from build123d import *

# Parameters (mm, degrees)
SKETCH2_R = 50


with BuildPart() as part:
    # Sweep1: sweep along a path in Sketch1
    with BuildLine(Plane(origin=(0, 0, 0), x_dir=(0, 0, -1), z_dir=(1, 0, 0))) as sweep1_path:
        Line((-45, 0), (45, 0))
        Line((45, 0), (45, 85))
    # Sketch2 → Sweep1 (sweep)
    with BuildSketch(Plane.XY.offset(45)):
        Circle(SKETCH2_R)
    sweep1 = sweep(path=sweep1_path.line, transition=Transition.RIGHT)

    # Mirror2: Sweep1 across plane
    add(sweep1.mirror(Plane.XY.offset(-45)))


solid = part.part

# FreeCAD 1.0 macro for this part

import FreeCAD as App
import Part
import Sketcher
Q = App.Units.Quantity

doc = App.newDocument("Part")
params = doc.addObject("Spreadsheet::Sheet", "Params")
for row, (alias, value) in enumerate([
    ("sketch1_diameter", "100 mm"),
    ("sketch2_width", "85 mm"),
    ("sketch2_height", "90 mm"),
], start=1):
    params.set(f"A{row}", alias)
    params.set(f"B{row}", "=" + value)
    params.setAlias(f"B{row}", alias)

body = doc.addObject("PartDesign::Body", "Body")

# Sketch on XY plane
sketch1 = doc.addObject("Sketcher::SketchObject", "Sketch")
body.addObject(sketch1)
sketch1.AttachmentSupport = (doc.XY_Plane, [""])
sketch1.MapMode = "FlatFace"
sketch1.AttachmentOffset = App.Placement(App.Vector(0, 0, 45), App.Rotation())
sketch1.addGeometry(Part.Circle(App.Vector(0, 0, 0), App.Vector(0, 0, 1), 50), False)
sketch1.addConstraint(Sketcher.Constraint("Coincident", 0, 3, -1, 1))
sketch1.addConstraint(Sketcher.Constraint("Diameter", 0, Q("100 mm")))
sketch1.setExpression("Constraints[1]", "Params.sketch1_diameter")

# Sketch on YZ plane
sketch2 = doc.addObject("Sketcher::SketchObject", "Sketch001")
body.addObject(sketch2)
sketch2.AttachmentSupport = (doc.YZ_Plane, [""])
sketch2.MapMode = "FlatFace"
sketch2.addGeometry(Part.LineSegment(App.Vector(0, 45, 0), App.Vector(0, -45, 0)), False)
sketch2.addGeometry(Part.LineSegment(App.Vector(0, -45, 0), App.Vector(85, -45, 0)), False)
sketch2.addConstraint(Sketcher.Constraint("Coincident", 0, 2, 1, 1))
sketch2.addConstraint(Sketcher.Constraint("Vertical", 0))
sketch2.addConstraint(Sketcher.Constraint("Horizontal", 1))
sketch2.addConstraint(Sketcher.Constraint("Symmetric", 0, 1, 0, 2, -1, 1))
sketch2.addConstraint(Sketcher.Constraint("DistanceX", 1, 1, 1, 2, Q("85 mm")))
sketch2.addConstraint(Sketcher.Constraint("DistanceY", 0, 2, 0, 1, Q("90 mm")))
sketch2.setExpression("Constraints[4]", "Params.sketch2_width")
sketch2.setExpression("Constraints[5]", "Params.sketch2_height")
doc.recompute()

additivepipe = doc.addObject("PartDesign::AdditivePipe", "AdditivePipe")
body.addObject(additivepipe)
additivepipe.Profile = sketch1
additivepipe.Spine = (sketch2, ["Edge1", "Edge2"])
additivepipe.Transition = "Right corner"
doc.recompute()

datumplane = doc.addObject("PartDesign::Plane", "DatumPlane")
body.addObject(datumplane)
datumplane.AttachmentSupport = (doc.XY_Plane, [""])
datumplane.MapMode = "FlatFace"
datumplane.AttachmentOffset = App.Placement(App.Vector(0, 0, -45), App.Rotation())
mirrored = doc.addObject("PartDesign::Mirrored", "Mirrored")
body.addObject(mirrored)
mirrored.Originals = [additivepipe]
mirrored.MirrorPlane = (datumplane, [""])
body.Tip = mirrored

doc.recompute()
